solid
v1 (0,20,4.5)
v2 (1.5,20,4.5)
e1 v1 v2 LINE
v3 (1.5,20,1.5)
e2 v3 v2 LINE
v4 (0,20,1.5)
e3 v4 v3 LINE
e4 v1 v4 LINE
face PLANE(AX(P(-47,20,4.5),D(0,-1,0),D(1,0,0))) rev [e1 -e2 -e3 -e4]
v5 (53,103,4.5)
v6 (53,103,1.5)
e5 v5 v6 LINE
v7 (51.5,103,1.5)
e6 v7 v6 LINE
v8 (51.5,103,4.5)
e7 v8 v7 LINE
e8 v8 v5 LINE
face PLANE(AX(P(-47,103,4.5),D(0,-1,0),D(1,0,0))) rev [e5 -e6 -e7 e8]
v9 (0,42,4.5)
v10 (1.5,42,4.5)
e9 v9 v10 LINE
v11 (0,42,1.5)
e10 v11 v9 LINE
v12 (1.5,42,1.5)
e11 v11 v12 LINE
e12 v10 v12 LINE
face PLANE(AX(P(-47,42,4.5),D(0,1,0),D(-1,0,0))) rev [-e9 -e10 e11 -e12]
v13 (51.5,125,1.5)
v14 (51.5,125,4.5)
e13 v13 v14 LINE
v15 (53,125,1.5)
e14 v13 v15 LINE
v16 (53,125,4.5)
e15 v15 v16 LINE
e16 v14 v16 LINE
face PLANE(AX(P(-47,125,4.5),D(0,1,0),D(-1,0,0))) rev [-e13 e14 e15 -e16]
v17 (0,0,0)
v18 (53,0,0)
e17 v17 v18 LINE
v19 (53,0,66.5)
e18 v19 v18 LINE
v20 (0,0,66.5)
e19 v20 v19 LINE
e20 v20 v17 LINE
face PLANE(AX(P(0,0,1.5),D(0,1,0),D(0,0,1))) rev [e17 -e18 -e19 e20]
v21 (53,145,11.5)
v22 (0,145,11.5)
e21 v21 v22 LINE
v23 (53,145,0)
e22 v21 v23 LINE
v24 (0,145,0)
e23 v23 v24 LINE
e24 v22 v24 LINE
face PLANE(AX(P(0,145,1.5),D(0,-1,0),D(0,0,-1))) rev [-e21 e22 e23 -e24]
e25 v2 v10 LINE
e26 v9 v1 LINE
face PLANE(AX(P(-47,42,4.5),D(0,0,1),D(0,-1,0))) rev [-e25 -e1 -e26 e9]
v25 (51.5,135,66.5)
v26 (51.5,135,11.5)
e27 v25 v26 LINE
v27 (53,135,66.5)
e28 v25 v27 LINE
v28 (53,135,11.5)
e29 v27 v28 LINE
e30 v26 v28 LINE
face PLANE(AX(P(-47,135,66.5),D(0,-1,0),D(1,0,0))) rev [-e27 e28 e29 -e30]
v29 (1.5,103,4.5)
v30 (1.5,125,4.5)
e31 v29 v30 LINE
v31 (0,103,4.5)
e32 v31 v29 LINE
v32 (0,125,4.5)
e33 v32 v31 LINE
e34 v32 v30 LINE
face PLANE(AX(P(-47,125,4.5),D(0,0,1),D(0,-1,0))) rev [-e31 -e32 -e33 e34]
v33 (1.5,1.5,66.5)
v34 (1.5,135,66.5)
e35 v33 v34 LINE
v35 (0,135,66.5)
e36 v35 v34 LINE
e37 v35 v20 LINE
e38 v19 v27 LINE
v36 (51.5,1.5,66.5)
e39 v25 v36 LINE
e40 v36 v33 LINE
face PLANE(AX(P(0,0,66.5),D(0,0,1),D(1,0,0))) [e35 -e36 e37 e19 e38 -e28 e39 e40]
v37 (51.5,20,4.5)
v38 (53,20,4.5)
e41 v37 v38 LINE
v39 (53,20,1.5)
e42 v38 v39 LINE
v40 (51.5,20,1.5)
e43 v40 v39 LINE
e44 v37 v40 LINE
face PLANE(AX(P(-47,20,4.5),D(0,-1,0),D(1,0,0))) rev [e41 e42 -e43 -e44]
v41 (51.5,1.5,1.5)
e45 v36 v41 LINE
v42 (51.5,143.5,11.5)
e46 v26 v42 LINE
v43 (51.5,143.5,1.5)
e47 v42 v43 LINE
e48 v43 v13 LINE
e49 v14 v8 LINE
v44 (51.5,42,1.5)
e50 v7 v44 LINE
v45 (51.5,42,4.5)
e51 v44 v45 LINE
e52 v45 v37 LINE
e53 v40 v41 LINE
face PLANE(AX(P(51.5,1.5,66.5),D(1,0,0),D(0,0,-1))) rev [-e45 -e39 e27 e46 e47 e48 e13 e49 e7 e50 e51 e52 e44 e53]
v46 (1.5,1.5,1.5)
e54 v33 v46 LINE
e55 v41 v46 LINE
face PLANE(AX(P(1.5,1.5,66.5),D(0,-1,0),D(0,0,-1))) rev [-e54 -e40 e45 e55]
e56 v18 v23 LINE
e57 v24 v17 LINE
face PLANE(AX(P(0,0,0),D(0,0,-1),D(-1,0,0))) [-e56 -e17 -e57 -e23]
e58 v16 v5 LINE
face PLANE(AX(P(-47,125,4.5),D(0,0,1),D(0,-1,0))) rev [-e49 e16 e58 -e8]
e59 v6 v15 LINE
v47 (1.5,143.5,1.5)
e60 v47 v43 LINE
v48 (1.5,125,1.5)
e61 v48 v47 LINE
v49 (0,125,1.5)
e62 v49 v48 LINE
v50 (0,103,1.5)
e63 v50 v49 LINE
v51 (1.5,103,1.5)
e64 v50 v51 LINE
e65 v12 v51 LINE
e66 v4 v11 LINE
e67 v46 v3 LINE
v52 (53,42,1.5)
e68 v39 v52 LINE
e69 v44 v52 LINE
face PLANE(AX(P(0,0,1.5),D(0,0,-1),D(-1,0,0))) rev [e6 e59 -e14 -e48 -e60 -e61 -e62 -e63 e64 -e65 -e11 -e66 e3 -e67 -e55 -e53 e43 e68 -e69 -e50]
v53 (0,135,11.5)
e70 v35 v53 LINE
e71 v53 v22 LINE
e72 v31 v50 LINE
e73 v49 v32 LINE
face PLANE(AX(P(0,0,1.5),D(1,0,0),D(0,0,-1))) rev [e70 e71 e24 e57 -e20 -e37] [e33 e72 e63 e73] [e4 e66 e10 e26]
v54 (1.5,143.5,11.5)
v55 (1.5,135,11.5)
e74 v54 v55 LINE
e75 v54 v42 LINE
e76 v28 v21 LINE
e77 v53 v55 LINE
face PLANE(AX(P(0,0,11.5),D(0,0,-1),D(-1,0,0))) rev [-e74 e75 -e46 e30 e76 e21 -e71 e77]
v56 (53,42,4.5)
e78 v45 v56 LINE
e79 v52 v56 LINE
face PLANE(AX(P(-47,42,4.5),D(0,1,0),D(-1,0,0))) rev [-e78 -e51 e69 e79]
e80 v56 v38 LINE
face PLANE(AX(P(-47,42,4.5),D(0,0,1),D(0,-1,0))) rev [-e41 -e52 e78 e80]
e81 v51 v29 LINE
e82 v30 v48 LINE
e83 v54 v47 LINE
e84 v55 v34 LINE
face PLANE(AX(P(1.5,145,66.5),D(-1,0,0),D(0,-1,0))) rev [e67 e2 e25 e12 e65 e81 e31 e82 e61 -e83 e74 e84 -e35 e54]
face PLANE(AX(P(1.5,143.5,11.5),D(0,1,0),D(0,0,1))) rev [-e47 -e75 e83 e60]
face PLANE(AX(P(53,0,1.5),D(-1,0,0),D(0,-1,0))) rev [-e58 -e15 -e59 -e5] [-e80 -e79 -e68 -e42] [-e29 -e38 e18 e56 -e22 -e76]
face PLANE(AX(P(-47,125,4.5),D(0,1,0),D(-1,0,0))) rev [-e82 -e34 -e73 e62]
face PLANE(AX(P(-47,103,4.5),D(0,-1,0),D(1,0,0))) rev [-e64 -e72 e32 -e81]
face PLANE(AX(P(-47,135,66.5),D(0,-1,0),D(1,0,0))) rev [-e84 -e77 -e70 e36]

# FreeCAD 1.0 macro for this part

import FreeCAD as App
import Part
import Sketcher


def add_polygon(sketch, points):
    """Adds a closed chain of lines whose ends are joined by coincident constraints."""
    first, n = sketch.GeometryCount, len(points)
    for a, b in zip(points, points[1:] + points[:1]):
        sketch.addGeometry(Part.LineSegment(App.Vector(*a, 0), App.Vector(*b, 0)), False)
    for i in range(n):
        sketch.addConstraint(Sketcher.Constraint("Coincident", first + i, 2, first + (i + 1) % n, 1))

doc = App.newDocument("Part")
body = doc.addObject("PartDesign::Body", "Body")

sketch1 = body.newObject("Sketcher::SketchObject", "Sketch")
sketch1.AttachmentSupport = (doc.getObject("XY_Plane"), [""])
sketch1.MapMode = "FlatFace"
add_polygon(sketch1, [(0, 145), (0, 0), (53, 0), (53, 145)])
sketch1.addConstraint([
    Sketcher.Constraint("Vertical", 0),
    Sketcher.Constraint("Horizontal", 1),
    Sketcher.Constraint("Vertical", 2),
    Sketcher.Constraint("Horizontal", 3),
    Sketcher.Constraint("Coincident", 0, 2, -1, 1),
    Sketcher.Constraint("DistanceX", 1, 1, 1, 2, 53.0),
    Sketcher.Constraint("DistanceY", 0, 2, 0, 1, 145.0),
])
pad1 = body.newObject("PartDesign::Pad", "Pad")
pad1.Profile = sketch1
pad1.Length = 1.5

sketch2 = body.newObject("Sketcher::SketchObject", "Sketch001")
sketch2.AttachmentSupport = (doc.getObject("XY_Plane"), [""])
sketch2.MapMode = "FlatFace"
sketch2.AttachmentOffset = App.Placement(App.Vector(0, 0, 1.5), App.Rotation())
add_polygon(sketch2, [(1.5, 1.5), (1.5, 145), (0, 145), (0, 0), (53, 0), (53, 145), (51.5, 145), (51.5, 1.5)])
sketch2.addConstraint([
    Sketcher.Constraint("Vertical", 0),
    Sketcher.Constraint("Horizontal", 1),
    Sketcher.Constraint("Vertical", 2),
    Sketcher.Constraint("Horizontal", 3),
    Sketcher.Constraint("Vertical", 4),
    Sketcher.Constraint("Horizontal", 5),
    Sketcher.Constraint("Vertical", 6),
    Sketcher.Constraint("Horizontal", 7),
    Sketcher.Constraint("Coincident", 2, 2, -1, 1),
    Sketcher.Constraint("Horizontal", 1, 2, 4, 2),
    Sketcher.Constraint("Equal", 1, 5),
    Sketcher.Constraint("DistanceX", 3, 1, 3, 2, 53.0),
    Sketcher.Constraint("DistanceX", 7, 2, 7, 1, 50.0),
    Sketcher.Constraint("DistanceY", 2, 2, 2, 1, 145.0),
    Sketcher.Constraint("DistanceY", 0, 1, 0, 2, 143.5),
])
pad2 = body.newObject("PartDesign::Pad", "Pad001")
pad2.Profile = sketch2
pad2.Length = 65

sketch3 = body.newObject("Sketcher::SketchObject", "Sketch002")
sketch3.AttachmentSupport = (doc.getObject("XY_Plane"), [""])
sketch3.MapMode = "FlatFace"
sketch3.AttachmentOffset = App.Placement(App.Vector(0, 0, 1.5), App.Rotation())
add_polygon(sketch3, [(1.5, 145), (1.5, 143.5), (51.5, 143.5), (51.5, 145)])
sketch3.addConstraint([
    Sketcher.Constraint("Vertical", 0),
    Sketcher.Constraint("Horizontal", 1),
    Sketcher.Constraint("Vertical", 2),
    Sketcher.Constraint("Horizontal", 3),
    Sketcher.Constraint("DistanceX", 1, 1, 1, 2, 50.0),
    Sketcher.Constraint("DistanceY", 0, 2, 0, 1, 1.5),
    Sketcher.Constraint("DistanceY", -1, 1, 2, 2, 145.0),
    Sketcher.Constraint("DistanceX", -1, 1, 0, 2, 1.5),
])
pad3 = body.newObject("PartDesign::Pad", "Pad002")
pad3.Profile = sketch3
pad3.Length = 10

sketch4 = body.newObject("Sketcher::SketchObject", "Sketch003")
sketch4.AttachmentSupport = (doc.getObject("YZ_Plane"), [""])
sketch4.MapMode = "FlatFace"
sketch4.AttachmentOffset = App.Placement(App.Vector(0, 0, 53), App.Rotation())
add_polygon(sketch4, [(125, 4.5), (103, 4.5), (103, 1.5), (125, 1.5)])
add_polygon(sketch4, [(42, 4.5), (20, 4.5), (20, 1.5), (42, 1.5)])
sketch4.addConstraint([
    Sketcher.Constraint("Horizontal", 0),
    Sketcher.Constraint("Vertical", 1),
    Sketcher.Constraint("Horizontal", 2),
    Sketcher.Constraint("Vertical", 3),
    Sketcher.Constraint("Horizontal", 4),
    Sketcher.Constraint("Vertical", 5),
    Sketcher.Constraint("Horizontal", 6),
    Sketcher.Constraint("Vertical", 7),
    Sketcher.Constraint("Horizontal", 3, 2, 4, 2),
    Sketcher.Constraint("Horizontal", 2, 2, 5, 2),
    Sketcher.Constraint("Equal", 2, 4),
    Sketcher.Constraint("DistanceX", 0, 2, 0, 1, 22.0),
    Sketcher.Constraint("DistanceY", 1, 2, 1, 1, 3.0),
    Sketcher.Constraint("DistanceX", -1, 1, 0, 2, 103.0),
    Sketcher.Constraint("DistanceX", -1, 1, 4, 2, 20.0),
    Sketcher.Constraint("DistanceY", -1, 1, 0, 2, 4.5),
])
pocket1 = body.newObject("PartDesign::Pocket", "Pocket")
pocket1.Profile = sketch4
pocket1.Length = 100

sketch5 = body.newObject("Sketcher::SketchObject", "Sketch004")
sketch5.AttachmentSupport = (doc.getObject("YZ_Plane"), [""])
sketch5.MapMode = "FlatFace"
sketch5.AttachmentOffset = App.Placement(App.Vector(0, 0, 53), App.Rotation())
add_polygon(sketch5, [(145, 66), (135, 66), (135, 12), (145, 12)])
sketch5.addConstraint([
    Sketcher.Constraint("Horizontal", 0),
    Sketcher.Constraint("Vertical", 1),
    Sketcher.Constraint("Horizontal", 2),
    Sketcher.Constraint("Vertical", 3),
    Sketcher.Constraint("DistanceX", 0, 2, 0, 1, 10.0),
    Sketcher.Constraint("DistanceY", 1, 2, 1, 1, 55.0),
    Sketcher.Constraint("DistanceX", -1, 1, 0, 2, 135.0),
    Sketcher.Constraint("DistanceY", -1, 1, 0, 2, 66.5),
])
pocket2 = body.newObject("PartDesign::Pocket", "Pocket001")
pocket2.Profile = sketch5
pocket2.Length = 100

doc.recompute()
